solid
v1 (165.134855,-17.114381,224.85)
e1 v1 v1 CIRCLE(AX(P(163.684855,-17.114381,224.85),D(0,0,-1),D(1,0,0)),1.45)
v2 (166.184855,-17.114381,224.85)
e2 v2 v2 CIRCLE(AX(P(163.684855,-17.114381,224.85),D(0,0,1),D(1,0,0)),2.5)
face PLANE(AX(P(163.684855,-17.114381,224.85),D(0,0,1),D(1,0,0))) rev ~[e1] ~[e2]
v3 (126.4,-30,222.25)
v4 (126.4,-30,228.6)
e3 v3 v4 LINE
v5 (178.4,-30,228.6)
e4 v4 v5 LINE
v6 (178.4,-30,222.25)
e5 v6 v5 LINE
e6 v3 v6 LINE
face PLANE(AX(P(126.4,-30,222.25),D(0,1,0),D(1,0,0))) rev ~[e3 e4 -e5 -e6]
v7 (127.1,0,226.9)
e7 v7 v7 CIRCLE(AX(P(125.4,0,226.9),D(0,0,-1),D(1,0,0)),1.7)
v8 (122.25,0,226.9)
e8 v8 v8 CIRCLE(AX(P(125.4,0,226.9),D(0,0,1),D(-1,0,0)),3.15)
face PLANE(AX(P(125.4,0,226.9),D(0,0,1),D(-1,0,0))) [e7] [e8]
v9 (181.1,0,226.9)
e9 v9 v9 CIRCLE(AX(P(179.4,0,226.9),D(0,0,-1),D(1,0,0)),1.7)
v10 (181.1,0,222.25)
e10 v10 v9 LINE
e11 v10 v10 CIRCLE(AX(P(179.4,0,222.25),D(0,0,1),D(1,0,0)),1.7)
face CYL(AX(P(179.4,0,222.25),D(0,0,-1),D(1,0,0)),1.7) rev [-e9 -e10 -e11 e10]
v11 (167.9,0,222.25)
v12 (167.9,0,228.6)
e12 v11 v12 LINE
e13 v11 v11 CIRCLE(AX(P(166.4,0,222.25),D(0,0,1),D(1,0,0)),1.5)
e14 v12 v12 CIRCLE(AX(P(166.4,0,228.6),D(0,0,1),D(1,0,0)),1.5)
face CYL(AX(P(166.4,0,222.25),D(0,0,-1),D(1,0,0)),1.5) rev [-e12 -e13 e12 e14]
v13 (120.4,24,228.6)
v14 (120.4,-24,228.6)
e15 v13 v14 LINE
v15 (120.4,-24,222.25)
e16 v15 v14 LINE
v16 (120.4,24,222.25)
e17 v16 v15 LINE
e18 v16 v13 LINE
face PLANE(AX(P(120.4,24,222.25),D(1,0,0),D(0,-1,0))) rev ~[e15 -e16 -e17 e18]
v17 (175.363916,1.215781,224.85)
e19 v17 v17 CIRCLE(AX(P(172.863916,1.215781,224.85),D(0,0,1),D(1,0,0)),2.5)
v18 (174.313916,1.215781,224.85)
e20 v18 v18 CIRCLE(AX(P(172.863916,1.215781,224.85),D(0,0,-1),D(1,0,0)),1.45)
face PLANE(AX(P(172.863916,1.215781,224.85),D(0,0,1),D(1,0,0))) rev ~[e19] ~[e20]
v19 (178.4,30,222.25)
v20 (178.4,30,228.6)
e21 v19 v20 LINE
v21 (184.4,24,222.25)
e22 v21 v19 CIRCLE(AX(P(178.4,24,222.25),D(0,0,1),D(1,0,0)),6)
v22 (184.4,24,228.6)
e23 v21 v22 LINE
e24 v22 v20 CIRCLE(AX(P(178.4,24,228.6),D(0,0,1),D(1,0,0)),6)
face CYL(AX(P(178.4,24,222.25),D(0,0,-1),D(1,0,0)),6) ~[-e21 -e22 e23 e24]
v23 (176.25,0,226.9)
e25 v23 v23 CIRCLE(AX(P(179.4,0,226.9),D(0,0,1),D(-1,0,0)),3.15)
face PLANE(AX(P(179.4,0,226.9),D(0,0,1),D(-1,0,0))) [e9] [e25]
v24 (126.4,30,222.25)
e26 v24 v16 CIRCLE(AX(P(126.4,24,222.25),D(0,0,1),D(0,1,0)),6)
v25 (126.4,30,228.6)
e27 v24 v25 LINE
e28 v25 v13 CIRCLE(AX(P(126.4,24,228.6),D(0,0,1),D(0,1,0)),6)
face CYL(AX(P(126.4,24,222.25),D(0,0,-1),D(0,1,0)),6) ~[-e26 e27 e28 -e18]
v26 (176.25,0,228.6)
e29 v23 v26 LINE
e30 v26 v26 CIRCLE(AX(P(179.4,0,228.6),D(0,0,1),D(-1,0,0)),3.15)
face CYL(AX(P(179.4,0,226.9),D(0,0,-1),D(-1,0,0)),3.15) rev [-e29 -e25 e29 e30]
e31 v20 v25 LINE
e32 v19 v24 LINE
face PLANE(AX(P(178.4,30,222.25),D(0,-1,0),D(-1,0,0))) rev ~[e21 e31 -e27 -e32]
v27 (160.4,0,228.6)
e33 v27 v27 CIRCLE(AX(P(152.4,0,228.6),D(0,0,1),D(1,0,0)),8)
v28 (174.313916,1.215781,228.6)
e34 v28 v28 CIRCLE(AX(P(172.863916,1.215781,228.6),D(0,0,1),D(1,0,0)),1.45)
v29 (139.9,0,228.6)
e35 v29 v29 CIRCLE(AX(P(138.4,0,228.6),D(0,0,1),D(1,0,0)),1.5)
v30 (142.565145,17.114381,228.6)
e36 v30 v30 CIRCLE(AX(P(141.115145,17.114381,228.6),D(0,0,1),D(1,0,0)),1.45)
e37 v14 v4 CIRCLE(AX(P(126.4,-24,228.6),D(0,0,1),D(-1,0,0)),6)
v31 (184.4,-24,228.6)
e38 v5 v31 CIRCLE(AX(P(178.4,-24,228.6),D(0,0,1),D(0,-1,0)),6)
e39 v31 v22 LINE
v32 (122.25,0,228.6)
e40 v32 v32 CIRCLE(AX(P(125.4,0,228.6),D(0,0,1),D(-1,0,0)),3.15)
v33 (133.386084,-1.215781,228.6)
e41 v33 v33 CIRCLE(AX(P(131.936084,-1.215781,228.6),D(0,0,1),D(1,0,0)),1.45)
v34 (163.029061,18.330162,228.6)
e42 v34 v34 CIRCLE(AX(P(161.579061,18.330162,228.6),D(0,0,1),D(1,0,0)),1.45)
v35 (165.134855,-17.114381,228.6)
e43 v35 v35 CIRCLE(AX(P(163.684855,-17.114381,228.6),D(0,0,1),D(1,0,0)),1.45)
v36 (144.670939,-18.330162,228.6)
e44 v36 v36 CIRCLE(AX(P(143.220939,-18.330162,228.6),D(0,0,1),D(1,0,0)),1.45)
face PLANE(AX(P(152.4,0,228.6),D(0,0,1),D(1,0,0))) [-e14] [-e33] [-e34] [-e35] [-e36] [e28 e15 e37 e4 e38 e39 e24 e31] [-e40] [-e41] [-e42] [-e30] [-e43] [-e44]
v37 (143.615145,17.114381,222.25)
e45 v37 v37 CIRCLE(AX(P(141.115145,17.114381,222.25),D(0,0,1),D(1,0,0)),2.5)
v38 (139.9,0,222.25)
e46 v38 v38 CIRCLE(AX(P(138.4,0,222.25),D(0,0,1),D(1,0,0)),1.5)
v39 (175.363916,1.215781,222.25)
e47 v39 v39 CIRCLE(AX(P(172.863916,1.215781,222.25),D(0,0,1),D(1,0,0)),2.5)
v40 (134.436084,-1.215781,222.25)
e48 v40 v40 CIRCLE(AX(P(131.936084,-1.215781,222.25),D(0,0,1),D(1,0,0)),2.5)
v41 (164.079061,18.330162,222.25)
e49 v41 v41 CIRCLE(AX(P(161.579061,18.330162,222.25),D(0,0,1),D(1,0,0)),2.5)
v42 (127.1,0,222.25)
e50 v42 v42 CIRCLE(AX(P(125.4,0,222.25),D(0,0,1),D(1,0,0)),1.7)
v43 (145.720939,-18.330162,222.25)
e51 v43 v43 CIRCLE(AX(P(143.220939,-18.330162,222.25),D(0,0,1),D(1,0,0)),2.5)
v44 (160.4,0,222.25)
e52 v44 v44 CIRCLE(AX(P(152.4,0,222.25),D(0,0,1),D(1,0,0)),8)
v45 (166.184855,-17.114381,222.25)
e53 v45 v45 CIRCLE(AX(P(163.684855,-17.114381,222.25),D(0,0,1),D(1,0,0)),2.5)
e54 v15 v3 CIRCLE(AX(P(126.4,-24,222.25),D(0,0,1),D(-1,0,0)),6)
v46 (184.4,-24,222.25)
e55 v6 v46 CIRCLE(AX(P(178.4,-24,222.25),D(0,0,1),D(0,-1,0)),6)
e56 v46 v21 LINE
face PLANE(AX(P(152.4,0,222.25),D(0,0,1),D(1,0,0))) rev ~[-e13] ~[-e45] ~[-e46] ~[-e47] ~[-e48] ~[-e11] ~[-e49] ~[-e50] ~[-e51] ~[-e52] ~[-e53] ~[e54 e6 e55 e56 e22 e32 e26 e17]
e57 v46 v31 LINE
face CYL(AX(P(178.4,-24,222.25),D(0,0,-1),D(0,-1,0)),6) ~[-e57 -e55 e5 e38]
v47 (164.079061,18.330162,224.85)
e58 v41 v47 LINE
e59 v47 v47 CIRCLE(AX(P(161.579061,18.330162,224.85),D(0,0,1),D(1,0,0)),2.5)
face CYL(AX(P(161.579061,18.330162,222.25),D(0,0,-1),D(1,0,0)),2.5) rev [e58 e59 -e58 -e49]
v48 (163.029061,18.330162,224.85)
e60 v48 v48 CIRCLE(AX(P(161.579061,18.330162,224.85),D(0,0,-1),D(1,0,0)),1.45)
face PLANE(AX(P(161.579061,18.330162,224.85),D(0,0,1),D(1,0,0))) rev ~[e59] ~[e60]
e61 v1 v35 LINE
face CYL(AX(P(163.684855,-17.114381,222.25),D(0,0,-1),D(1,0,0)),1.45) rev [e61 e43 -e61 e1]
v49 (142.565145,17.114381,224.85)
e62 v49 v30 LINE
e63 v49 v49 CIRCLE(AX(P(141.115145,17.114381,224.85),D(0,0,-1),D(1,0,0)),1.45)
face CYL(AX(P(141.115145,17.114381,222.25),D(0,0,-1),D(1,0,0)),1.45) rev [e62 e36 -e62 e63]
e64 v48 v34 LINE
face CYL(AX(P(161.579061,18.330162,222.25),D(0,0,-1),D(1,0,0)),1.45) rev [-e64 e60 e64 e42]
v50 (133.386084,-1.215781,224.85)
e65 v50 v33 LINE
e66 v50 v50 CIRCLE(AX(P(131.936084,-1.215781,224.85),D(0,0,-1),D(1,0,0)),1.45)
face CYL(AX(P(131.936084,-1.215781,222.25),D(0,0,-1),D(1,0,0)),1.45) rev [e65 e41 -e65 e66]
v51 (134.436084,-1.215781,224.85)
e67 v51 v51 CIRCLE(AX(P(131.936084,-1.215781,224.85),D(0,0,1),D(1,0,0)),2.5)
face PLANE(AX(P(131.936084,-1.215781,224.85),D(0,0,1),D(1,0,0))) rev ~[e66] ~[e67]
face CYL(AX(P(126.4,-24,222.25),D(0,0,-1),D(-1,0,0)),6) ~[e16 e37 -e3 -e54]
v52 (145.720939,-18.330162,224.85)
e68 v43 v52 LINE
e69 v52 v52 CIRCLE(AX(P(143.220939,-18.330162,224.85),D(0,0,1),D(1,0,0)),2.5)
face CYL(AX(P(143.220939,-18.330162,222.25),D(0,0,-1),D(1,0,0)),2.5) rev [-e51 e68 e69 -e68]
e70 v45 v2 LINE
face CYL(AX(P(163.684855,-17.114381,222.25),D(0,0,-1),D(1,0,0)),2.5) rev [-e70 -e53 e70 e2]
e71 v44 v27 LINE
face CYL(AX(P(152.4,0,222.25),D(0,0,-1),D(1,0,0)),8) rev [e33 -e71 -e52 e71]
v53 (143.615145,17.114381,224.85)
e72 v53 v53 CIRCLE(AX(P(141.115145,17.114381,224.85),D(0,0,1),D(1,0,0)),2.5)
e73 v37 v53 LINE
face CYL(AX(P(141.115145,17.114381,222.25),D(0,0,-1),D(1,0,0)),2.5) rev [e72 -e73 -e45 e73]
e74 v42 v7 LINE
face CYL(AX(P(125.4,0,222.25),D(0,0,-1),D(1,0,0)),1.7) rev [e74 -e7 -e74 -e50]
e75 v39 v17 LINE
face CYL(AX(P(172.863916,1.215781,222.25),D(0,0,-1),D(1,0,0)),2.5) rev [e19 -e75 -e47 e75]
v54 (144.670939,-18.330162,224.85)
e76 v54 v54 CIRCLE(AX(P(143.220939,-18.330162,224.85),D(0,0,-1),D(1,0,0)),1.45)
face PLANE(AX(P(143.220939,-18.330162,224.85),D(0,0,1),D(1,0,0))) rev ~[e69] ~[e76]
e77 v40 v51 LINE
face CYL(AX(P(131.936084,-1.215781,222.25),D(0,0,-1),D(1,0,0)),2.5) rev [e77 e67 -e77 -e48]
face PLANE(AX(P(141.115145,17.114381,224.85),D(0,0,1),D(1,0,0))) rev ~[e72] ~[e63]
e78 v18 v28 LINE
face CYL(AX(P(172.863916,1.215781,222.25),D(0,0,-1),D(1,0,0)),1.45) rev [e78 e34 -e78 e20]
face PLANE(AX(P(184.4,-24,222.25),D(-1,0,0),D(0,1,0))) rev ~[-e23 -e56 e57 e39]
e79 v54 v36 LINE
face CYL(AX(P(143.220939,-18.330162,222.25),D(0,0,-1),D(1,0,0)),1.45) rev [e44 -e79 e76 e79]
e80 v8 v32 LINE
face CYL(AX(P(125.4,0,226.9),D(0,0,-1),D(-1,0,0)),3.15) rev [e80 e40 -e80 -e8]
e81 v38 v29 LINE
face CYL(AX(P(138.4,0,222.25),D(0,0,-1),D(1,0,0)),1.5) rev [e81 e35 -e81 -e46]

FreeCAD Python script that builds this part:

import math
import FreeCAD as App
import Part
import Sketcher

V = App.Vector
Q = App.Units.Quantity

doc = App.newDocument("Part")
body = doc.addObject("PartDesign::Body", "Body")

sketch1 = body.newObject("Sketcher::SketchObject", "Sketch")
sketch1.AttachmentSupport = (doc.getObject("XY_Plane"), [""])
sketch1.MapMode = "FlatFace"
sketch1.AttachmentOffset = App.Placement(V(0, 0, 222.25), App.Rotation())
sketch1.addGeometry([
    Part.LineSegment(V(126.4, -30, 0), V(178.4, -30, 0)),
    Part.ArcOfCircle(Part.Circle(V(178.4, -24, 0), V(0, 0, 1), 6), math.radians(-90), math.radians(0)),
    Part.LineSegment(V(184.4, -24, 0), V(184.4, 24, 0)),
    Part.ArcOfCircle(Part.Circle(V(178.4, 24, 0), V(0, 0, 1), 6), math.radians(0), math.radians(90)),
    Part.LineSegment(V(178.4, 30, 0), V(126.4, 30, 0)),
    Part.ArcOfCircle(Part.Circle(V(126.4, 24, 0), V(0, 0, 1), 6), math.radians(90), math.radians(180)),
    Part.LineSegment(V(120.4, 24, 0), V(120.4, -24, 0)),
    Part.ArcOfCircle(Part.Circle(V(126.4, -24, 0), V(0, 0, 1), 6), math.radians(180), math.radians(270)),
], False)
sketch1.addConstraint([
    Sketcher.Constraint("Tangent", 0, 2, 1, 1),
    Sketcher.Constraint("Tangent", 1, 2, 2, 1),
    Sketcher.Constraint("Tangent", 2, 2, 3, 1),
    Sketcher.Constraint("Tangent", 3, 2, 4, 1),
    Sketcher.Constraint("Tangent", 4, 2, 5, 1),
    Sketcher.Constraint("Tangent", 5, 2, 6, 1),
    Sketcher.Constraint("Tangent", 6, 2, 7, 1),
    Sketcher.Constraint("Tangent", 7, 2, 0, 1),
    Sketcher.Constraint("Horizontal", 0),
    Sketcher.Constraint("Vertical", 2),
    Sketcher.Constraint("Horizontal", 4),
    Sketcher.Constraint("Vertical", 6),
    Sketcher.Constraint("Equal", 1, 3),
    Sketcher.Constraint("Equal", 3, 5),
    Sketcher.Constraint("Equal", 5, 7),
    Sketcher.Constraint("Radius", 1, Q("6 mm")),
    Sketcher.Constraint("DistanceX", 0, 1, 0, 2, Q("52 mm")),
    Sketcher.Constraint("DistanceY", 2, 1, 2, 2, Q("48 mm")),
    Sketcher.Constraint("DistanceY", 1, 3, -1, 1, Q("24 mm")),
    Sketcher.Constraint("DistanceX", -1, 1, 1, 3, Q("178.4 mm")),
])
pad1 = body.newObject("PartDesign::Pad", "Pad")
pad1.Profile = sketch1
pad1.Length = 6.35

sketch2 = body.newObject("Sketcher::SketchObject", "Sketch001")
sketch2.AttachmentSupport = (doc.getObject("XY_Plane"), [""])
sketch2.MapMode = "FlatFace"
sketch2.AttachmentOffset = App.Placement(V(0, 0, 222.25), App.Rotation())
sketch2.addGeometry([
    Part.Circle(V(172.863916, 1.215781, 0), V(0, 0, 1), 1.45),
    Part.Circle(V(161.579061, 18.330162, 0), V(0, 0, 1), 1.45),
    Part.Circle(V(141.115145, 17.114381, 0), V(0, 0, 1), 1.45),
    Part.Circle(V(131.936084, -1.215781, 0), V(0, 0, 1), 1.45),
    Part.Circle(V(143.220939, -18.330162, 0), V(0, 0, 1), 1.45),
    Part.Circle(V(163.684855, -17.114381, 0), V(0, 0, 1), 1.45),
    Part.Circle(V(152.4, 0, 0), V(0, 0, 1), 8),
    Part.Circle(V(125.4, 0, 0), V(0, 0, 1), 1.7),
    Part.Circle(V(179.4, 0, 0), V(0, 0, 1), 1.7),
    Part.Circle(V(138.4, 0, 0), V(0, 0, 1), 1.5),
    Part.Circle(V(166.4, 0, 0), V(0, 0, 1), 1.5),
], False)
sketch2.addConstraint([
    Sketcher.Constraint("Equal", 0, 1),
    Sketcher.Constraint("Equal", 1, 2),
    Sketcher.Constraint("Equal", 2, 3),
    Sketcher.Constraint("Equal", 3, 4),
    Sketcher.Constraint("Equal", 4, 5),
    Sketcher.Constraint("Equal", 7, 8),
    Sketcher.Constraint("Equal", 9, 10),
    Sketcher.Constraint("PointOnObject", 6, 3, -1),
    Sketcher.Constraint("PointOnObject", 7, 3, -1),
    Sketcher.Constraint("PointOnObject", 8, 3, -1),
    Sketcher.Constraint("PointOnObject", 9, 3, -1),
    Sketcher.Constraint("PointOnObject", 10, 3, -1),
    Sketcher.Constraint("Diameter", 6, Q("16 mm")),
    Sketcher.Constraint("Diameter", 9, Q("3 mm")),
    Sketcher.Constraint("Diameter", 0, Q("2.9 mm")),
    Sketcher.Constraint("Diameter", 7, Q("3.4 mm")),
    Sketcher.Constraint("DistanceX", 7, 3, 6, 3, Q("27 mm")),
    Sketcher.Constraint("DistanceX", 6, 3, 8, 3, Q("27 mm")),
    Sketcher.Constraint("DistanceX", 7, 3, 9, 3, Q("13 mm")),
    Sketcher.Constraint("DistanceX", 10, 3, 8, 3, Q("13 mm")),
    Sketcher.Constraint("DistanceX", -1, 1, 6, 3, Q("152.4 mm")),
    Sketcher.Constraint("DistanceY", 0, 3, 2, 3, Q("15.898601 mm")),
    Sketcher.Constraint("DistanceY", 5, 3, 3, 3, Q("15.898601 mm")),
    Sketcher.Constraint("DistanceY", -1, 1, 0, 3, Q("1.215781 mm")),
    Sketcher.Constraint("DistanceX", -1, 1, 1, 3, Q("161.579061 mm")),
    Sketcher.Constraint("DistanceY", -1, 1, 1, 3, Q("18.330162 mm")),
    Sketcher.Constraint("DistanceY", 3, 3, -1, 1, Q("1.215781 mm")),
    Sketcher.Constraint("DistanceX", -1, 1, 4, 3, Q("143.220939 mm")),
    Sketcher.Constraint("DistanceY", 4, 3, -1, 1, Q("18.330162 mm")),
    Sketcher.Constraint("DistanceX", 2, 3, 0, 3, Q("31.748772 mm")),
    Sketcher.Constraint("DistanceX", 3, 3, 2, 3, Q("9.179061 mm")),
    Sketcher.Constraint("DistanceX", 5, 3, 0, 3, Q("9.179061 mm")),
    Sketcher.Constraint("DistanceX", -1, 1, 0, 3, Q("172.863916 mm")),
])
pocket1 = body.newObject("PartDesign::Pocket", "Pocket")
pocket1.Profile = sketch2
pocket1.Length = 6.35
pocket1.Reversed = True

sketch3 = body.newObject("Sketcher::SketchObject", "Sketch002")
sketch3.AttachmentSupport = (doc.getObject("XY_Plane"), [""])
sketch3.MapMode = "FlatFace"
sketch3.AttachmentOffset = App.Placement(V(0, 0, 222.25), App.Rotation())
sketch3.addGeometry([
    Part.Circle(V(172.863916, 1.215781, 0), V(0, 0, 1), 2.5),
    Part.Circle(V(161.579061, 18.330162, 0), V(0, 0, 1), 2.5),
    Part.Circle(V(141.115145, 17.114381, 0), V(0, 0, 1), 2.5),
    Part.Circle(V(131.936084, -1.215781, 0), V(0, 0, 1), 2.5),
    Part.Circle(V(143.220939, -18.330162, 0), V(0, 0, 1), 2.5),
    Part.Circle(V(163.684855, -17.114381, 0), V(0, 0, 1), 2.5),
], False)
sketch3.addConstraint([
    Sketcher.Constraint("Equal", 0, 1),
    Sketcher.Constraint("Equal", 1, 2),
    Sketcher.Constraint("Equal", 2, 3),
    Sketcher.Constraint("Equal", 3, 4),
    Sketcher.Constraint("Equal", 4, 5),
    Sketcher.Constraint("Diameter", 0, Q("5 mm")),
    Sketcher.Constraint("DistanceY", 0, 3, 2, 3, Q("15.898601 mm")),
    Sketcher.Constraint("DistanceY", 5, 3, 3, 3, Q("15.898601 mm")),
    Sketcher.Constraint("DistanceY", -1, 1, 0, 3, Q("1.215781 mm")),
    Sketcher.Constraint("DistanceX", -1, 1, 1, 3, Q("161.579061 mm")),
    Sketcher.Constraint("DistanceY", -1, 1, 1, 3, Q("18.330162 mm")),
    Sketcher.Constraint("DistanceY", 3, 3, -1, 1, Q("1.215781 mm")),
    Sketcher.Constraint("DistanceX", -1, 1, 4, 3, Q("143.220939 mm")),
    Sketcher.Constraint("DistanceY", 4, 3, -1, 1, Q("18.330162 mm")),
    Sketcher.Constraint("DistanceX", 2, 3, 0, 3, Q("31.748772 mm")),
    Sketcher.Constraint("DistanceX", 3, 3, 2, 3, Q("9.179061 mm")),
    Sketcher.Constraint("DistanceX", 5, 3, 0, 3, Q("9.179061 mm")),
    Sketcher.Constraint("DistanceX", -1, 1, 0, 3, Q("172.863916 mm")),
])
pocket2 = body.newObject("PartDesign::Pocket", "Pocket001")
pocket2.Profile = sketch3
pocket2.Length = 2.6
pocket2.Reversed = True

sketch4 = body.newObject("Sketcher::SketchObject", "Sketch003")
sketch4.AttachmentSupport = (doc.getObject("XY_Plane"), [""])
sketch4.MapMode = "FlatFace"
sketch4.AttachmentOffset = App.Placement(V(0, 0, 226.9), App.Rotation())
sketch4.addGeometry([
    Part.Circle(V(125.4, 0, 0), V(0, 0, 1), 3.15),
    Part.Circle(V(179.4, 0, 0), V(0, 0, 1), 3.15),
], False)
sketch4.addConstraint([
    Sketcher.Constraint("Equal", 0, 1),
    Sketcher.Constraint("PointOnObject", 0, 3, -1),
    Sketcher.Constraint("PointOnObject", 1, 3, -1),
    Sketcher.Constraint("Diameter", 0, Q("6.3 mm")),
    Sketcher.Constraint("DistanceX", 0, 3, 1, 3, Q("54 mm")),
    Sketcher.Constraint("DistanceX", -1, 1, 0, 3, Q("125.4 mm")),
])
pocket3 = body.newObject("PartDesign::Pocket", "Pocket002")
pocket3.Profile = sketch4
pocket3.Length = 1.7
pocket3.Reversed = True

doc.recompute()
